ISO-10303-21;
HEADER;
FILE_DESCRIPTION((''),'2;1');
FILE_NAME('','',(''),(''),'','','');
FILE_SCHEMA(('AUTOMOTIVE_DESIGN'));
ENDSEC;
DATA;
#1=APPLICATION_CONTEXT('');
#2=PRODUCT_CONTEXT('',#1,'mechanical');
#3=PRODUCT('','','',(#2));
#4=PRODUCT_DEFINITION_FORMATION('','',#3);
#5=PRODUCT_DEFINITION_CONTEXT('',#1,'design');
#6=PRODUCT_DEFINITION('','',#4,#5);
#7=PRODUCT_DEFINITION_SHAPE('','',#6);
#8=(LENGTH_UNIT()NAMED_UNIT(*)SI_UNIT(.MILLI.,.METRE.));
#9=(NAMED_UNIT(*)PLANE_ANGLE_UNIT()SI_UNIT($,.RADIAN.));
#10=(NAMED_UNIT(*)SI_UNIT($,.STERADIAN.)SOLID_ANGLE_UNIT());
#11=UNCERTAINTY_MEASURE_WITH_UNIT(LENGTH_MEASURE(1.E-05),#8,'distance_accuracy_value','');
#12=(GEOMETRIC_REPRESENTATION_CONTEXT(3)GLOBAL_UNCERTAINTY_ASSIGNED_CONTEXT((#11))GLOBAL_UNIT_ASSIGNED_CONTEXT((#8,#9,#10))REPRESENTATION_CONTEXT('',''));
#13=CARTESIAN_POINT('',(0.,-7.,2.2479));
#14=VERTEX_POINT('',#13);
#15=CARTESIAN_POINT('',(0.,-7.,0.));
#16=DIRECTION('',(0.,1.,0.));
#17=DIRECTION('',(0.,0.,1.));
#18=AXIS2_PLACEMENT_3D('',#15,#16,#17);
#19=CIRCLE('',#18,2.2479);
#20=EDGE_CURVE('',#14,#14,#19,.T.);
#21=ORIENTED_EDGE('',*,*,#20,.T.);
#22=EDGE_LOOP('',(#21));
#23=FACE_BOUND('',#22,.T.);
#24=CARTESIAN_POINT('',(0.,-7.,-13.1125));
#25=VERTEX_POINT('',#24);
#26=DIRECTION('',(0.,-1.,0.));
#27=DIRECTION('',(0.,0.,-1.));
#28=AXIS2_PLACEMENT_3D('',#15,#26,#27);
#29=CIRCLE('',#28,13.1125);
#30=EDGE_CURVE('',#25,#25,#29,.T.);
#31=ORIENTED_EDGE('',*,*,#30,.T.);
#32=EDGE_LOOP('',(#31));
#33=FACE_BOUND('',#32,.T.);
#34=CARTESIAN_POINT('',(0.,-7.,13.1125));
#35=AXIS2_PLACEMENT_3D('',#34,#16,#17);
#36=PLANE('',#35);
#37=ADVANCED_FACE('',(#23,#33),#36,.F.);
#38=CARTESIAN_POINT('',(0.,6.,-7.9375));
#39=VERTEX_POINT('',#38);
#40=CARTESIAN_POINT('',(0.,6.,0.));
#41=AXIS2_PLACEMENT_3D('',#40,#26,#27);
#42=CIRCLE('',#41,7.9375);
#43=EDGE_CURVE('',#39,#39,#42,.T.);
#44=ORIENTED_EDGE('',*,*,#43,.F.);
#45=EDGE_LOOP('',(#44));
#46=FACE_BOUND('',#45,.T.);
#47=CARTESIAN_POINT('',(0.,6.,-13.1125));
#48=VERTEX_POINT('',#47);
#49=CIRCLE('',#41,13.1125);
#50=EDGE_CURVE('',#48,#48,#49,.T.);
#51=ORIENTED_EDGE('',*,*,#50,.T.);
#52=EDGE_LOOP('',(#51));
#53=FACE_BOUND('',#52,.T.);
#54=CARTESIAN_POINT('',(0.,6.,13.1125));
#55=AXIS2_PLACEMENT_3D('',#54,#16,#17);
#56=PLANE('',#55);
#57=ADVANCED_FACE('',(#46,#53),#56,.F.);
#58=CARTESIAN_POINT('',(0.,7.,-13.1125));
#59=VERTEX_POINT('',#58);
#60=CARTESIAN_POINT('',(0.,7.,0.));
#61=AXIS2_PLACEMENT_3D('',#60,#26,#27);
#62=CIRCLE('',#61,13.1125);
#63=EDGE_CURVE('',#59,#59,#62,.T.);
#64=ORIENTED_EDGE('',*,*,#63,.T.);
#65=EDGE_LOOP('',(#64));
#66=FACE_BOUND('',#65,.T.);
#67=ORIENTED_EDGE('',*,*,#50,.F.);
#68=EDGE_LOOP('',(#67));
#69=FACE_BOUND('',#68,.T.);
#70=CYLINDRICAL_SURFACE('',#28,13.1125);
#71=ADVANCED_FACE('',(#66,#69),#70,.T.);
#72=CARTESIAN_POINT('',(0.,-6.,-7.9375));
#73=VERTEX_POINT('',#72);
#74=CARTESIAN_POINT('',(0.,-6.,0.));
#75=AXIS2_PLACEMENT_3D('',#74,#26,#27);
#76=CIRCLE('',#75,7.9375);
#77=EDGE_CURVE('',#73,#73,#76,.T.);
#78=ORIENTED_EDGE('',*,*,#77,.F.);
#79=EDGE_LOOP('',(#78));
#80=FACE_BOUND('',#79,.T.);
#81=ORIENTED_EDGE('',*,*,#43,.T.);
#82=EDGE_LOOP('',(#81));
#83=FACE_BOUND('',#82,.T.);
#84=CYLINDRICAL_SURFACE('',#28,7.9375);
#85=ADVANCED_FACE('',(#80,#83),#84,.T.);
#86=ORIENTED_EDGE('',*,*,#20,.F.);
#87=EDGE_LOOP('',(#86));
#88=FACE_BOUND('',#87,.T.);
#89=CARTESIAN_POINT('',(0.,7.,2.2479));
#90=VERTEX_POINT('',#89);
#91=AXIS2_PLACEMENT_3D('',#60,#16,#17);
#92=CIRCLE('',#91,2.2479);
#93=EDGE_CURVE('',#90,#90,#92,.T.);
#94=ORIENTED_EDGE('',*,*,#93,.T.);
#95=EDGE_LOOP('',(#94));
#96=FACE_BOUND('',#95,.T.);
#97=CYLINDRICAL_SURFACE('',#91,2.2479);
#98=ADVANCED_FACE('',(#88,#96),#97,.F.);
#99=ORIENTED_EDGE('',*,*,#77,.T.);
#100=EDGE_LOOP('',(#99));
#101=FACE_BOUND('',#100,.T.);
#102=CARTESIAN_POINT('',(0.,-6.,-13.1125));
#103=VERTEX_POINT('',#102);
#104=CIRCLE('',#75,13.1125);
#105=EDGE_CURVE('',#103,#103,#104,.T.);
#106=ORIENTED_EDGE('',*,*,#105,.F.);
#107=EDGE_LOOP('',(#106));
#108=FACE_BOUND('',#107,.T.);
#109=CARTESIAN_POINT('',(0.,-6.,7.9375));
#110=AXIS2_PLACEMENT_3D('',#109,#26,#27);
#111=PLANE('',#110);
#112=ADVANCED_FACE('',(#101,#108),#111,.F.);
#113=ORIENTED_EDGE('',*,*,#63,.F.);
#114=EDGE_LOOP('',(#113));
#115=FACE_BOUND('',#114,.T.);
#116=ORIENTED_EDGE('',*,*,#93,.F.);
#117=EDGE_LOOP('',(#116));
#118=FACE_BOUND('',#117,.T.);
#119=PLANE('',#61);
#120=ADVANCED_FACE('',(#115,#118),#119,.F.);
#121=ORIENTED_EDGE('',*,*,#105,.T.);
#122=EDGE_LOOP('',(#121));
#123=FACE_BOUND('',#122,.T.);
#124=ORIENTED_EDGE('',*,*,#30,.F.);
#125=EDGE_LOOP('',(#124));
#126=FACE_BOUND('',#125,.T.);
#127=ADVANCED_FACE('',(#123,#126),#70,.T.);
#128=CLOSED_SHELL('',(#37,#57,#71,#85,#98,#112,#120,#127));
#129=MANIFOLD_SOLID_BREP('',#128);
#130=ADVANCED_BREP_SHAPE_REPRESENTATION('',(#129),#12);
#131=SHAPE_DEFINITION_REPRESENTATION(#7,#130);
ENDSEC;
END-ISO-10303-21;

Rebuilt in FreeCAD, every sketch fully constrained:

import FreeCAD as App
import Part
import Sketcher
Q = App.Units.Quantity


def add_polygon(sketch, points):
    """Adds a closed chain of lines whose ends are joined by coincident constraints."""
    first, n = sketch.GeometryCount, len(points)
    for a, b in zip(points, points[1:] + points[:1]):
        sketch.addGeometry(Part.LineSegment(App.Vector(*a, 0), App.Vector(*b, 0)), False)
    for i in range(n):
        sketch.addConstraint(Sketcher.Constraint("Coincident", first + i, 2, first + (i + 1) % n, 1))

doc = App.newDocument("Part")
body = doc.addObject("PartDesign::Body", "Body")

sketch1 = body.newObject("Sketcher::SketchObject", "Sketch")
sketch1.AttachmentSupport = (doc.getObject("YZ_Plane"), [""])
sketch1.MapMode = "FlatFace"
add_polygon(sketch1, [(-7, 0), (7, 0), (7, 13.1125), (6, 13.1125), (6, 7.9375), (-6, 7.9375), (-6, 13.1125), (-7, 13.1125)])
sketch1.addConstraint([
    Sketcher.Constraint("Horizontal", 0),
    Sketcher.Constraint("Vertical", 1),
    Sketcher.Constraint("Horizontal", 2),
    Sketcher.Constraint("Vertical", 3),
    Sketcher.Constraint("Horizontal", 4),
    Sketcher.Constraint("Vertical", 5),
    Sketcher.Constraint("Horizontal", 6),
    Sketcher.Constraint("Vertical", 7),
    Sketcher.Constraint("Symmetric", 0, 2, 7, 2, -1, 1),
    Sketcher.Constraint("Symmetric", 2, 2, 5, 2, -2),
    Sketcher.Constraint("DistanceX", 0, 1, 0, 2, Q("14 mm")),
    Sketcher.Constraint("DistanceX", 2, 2, 2, 1, Q("1 mm")),
    Sketcher.Constraint("DistanceY", 3, 2, 3, 1, Q("5.175 mm")),
    Sketcher.Constraint("DistanceY", 1, 1, 1, 2, Q("13.1125 mm")),
])
revolution = body.newObject("PartDesign::Revolution", "Revolution")
revolution.Profile = sketch1
revolution.ReferenceAxis = (sketch1, ["H_Axis"])
revolution.Angle = 360

sketch2 = body.newObject("Sketcher::SketchObject", "Sketch001")
sketch2.AttachmentSupport = (doc.getObject("XZ_Plane"), [""])
sketch2.MapMode = "FlatFace"
sketch2.AttachmentOffset = App.Placement(App.Vector(0, 0, -7), App.Rotation())
sketch2.addGeometry(Part.Circle(App.Vector(0, 0, 0), App.Vector(0, 0, 1), 2.2479), False)
sketch2.addConstraint([
    Sketcher.Constraint("Coincident", 0, 3, -1, 1),
    Sketcher.Constraint("Diameter", 0, Q("4.4958 mm")),
])
doc.recompute()
hole = body.newObject("PartDesign::Hole", "Hole")
hole.Profile = sketch2
hole.ThreadType = "None"
hole.Diameter = 4.4958
hole.DepthType = "ThroughAll"
hole.Reversed = True

doc.recompute()
